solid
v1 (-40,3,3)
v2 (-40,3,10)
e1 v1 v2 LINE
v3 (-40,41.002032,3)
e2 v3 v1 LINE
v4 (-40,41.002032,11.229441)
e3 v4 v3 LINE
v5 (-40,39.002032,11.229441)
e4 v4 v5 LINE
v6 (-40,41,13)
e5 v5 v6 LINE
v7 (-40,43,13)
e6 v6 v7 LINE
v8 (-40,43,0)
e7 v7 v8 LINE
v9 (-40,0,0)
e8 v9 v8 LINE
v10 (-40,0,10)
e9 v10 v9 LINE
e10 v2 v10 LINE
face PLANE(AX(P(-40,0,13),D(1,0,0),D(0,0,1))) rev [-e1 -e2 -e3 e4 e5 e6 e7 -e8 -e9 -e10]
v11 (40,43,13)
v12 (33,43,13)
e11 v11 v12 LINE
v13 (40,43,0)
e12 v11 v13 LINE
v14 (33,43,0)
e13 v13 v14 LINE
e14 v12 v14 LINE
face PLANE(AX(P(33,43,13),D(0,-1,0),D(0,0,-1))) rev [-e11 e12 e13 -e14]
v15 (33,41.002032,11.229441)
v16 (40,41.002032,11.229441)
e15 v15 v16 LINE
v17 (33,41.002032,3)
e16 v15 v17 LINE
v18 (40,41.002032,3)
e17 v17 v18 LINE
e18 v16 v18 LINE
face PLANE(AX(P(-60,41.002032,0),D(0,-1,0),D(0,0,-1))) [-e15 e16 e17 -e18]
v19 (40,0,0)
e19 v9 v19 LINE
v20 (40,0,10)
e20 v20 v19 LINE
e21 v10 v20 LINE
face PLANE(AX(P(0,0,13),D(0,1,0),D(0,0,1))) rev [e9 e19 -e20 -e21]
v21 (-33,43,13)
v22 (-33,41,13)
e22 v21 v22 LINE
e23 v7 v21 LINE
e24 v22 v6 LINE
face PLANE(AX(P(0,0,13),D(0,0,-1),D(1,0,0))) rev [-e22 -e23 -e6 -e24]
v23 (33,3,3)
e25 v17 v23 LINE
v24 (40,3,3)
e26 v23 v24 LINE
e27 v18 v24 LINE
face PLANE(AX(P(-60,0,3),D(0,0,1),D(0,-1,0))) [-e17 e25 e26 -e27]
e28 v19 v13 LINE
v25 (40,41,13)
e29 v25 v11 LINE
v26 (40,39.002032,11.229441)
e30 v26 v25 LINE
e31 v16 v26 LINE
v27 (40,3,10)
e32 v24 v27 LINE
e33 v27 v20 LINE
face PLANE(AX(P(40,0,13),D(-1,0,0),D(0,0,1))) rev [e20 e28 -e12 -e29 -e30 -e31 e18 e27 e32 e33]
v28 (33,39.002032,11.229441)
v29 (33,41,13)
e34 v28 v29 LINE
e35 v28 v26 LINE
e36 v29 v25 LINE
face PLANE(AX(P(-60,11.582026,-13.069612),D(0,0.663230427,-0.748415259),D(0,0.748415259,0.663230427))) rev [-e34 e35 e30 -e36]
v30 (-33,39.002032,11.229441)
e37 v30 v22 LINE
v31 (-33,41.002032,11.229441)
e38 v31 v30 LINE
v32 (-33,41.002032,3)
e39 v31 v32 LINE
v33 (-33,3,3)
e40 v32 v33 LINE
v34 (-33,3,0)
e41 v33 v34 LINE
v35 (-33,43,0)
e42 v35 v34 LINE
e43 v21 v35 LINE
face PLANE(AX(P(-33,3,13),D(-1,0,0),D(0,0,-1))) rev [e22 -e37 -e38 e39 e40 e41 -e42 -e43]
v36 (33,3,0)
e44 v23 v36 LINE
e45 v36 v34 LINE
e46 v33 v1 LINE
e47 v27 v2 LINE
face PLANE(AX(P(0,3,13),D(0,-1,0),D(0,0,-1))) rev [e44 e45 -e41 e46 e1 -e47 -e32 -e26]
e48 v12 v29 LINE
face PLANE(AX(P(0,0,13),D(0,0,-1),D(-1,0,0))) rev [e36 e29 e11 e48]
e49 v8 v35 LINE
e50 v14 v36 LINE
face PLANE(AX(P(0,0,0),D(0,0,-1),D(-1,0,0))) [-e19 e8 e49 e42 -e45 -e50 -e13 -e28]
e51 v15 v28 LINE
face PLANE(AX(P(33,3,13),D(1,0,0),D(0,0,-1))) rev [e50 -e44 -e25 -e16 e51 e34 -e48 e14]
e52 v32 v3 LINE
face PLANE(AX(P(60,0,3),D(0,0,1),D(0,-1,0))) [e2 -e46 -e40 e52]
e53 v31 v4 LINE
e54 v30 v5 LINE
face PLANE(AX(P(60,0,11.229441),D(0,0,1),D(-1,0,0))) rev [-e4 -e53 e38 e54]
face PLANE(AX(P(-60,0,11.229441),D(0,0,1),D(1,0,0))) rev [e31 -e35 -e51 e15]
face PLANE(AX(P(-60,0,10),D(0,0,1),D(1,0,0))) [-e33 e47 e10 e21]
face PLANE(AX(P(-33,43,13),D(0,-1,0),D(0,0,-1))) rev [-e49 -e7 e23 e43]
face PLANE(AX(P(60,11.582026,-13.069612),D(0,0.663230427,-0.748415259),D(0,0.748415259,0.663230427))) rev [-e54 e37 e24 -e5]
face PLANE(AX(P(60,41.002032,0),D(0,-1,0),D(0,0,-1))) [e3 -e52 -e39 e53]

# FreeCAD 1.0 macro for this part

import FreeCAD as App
import Part
import Sketcher
from FreeCAD import Vector


def add_polygon(sketch, points):
    """Adds a closed chain of lines whose ends are joined by coincident constraints."""
    first, n = sketch.GeometryCount, len(points)
    for a, b in zip(points, points[1:] + points[:1]):
        sketch.addGeometry(Part.LineSegment(App.Vector(*a, 0), App.Vector(*b, 0)), False)
    for i in range(n):
        sketch.addConstraint(Sketcher.Constraint("Coincident", first + i, 2, first + (i + 1) % n, 1))

doc = App.newDocument("Part")
body = doc.addObject("PartDesign::Body", "Body")

sketch1 = body.newObject("Sketcher::SketchObject", "Sketch")
sketch1.AttachmentSupport = (doc.getObject("XY_Plane"), [""])
sketch1.MapMode = "FlatFace"
add_polygon(sketch1, [(0, 0), (40, 0), (40, 43), (33, 43), (33, 3), (0, 3)])
sketch1.addConstraint([
    Sketcher.Constraint("Horizontal", 0),
    Sketcher.Constraint("Vertical", 1),
    Sketcher.Constraint("Horizontal", 2),
    Sketcher.Constraint("Vertical", 3),
    Sketcher.Constraint("Horizontal", 4),
    Sketcher.Constraint("Vertical", 5),
    Sketcher.Constraint("Coincident", 5, 2, -1, 1),
    Sketcher.Constraint("Equal", 0, 3),
    Sketcher.Constraint("DistanceX", 0, 1, 0, 2, 40.0),
    Sketcher.Constraint("DistanceX", 2, 2, 2, 1, 7.0),
    Sketcher.Constraint("DistanceY", 1, 1, 1, 2, 43.0),
])
pad1 = body.newObject("PartDesign::Pad", "Pad")
pad1.Profile = sketch1
pad1.Length = 13

sketch2 = body.newObject("Sketcher::SketchObject", "Sketch001")
sketch2.AttachmentSupport = (doc.getObject("YZ_Plane"), [""])
sketch2.MapMode = "FlatFace"
sketch2.AttachmentOffset = App.Placement(Vector(0, 0, 40), App.Rotation())
add_polygon(sketch2, [(39.002032, 11.229441), (41, 13), (0, 13), (0, 10), (3, 10), (3, 3), (41.002032, 3), (41.002032, 11.229441)])
sketch2.addConstraint([
    Sketcher.Constraint("Horizontal", 1),
    Sketcher.Constraint("Vertical", 2),
    Sketcher.Constraint("Horizontal", 3),
    Sketcher.Constraint("Vertical", 4),
    Sketcher.Constraint("Horizontal", 5),
    Sketcher.Constraint("Vertical", 6),
    Sketcher.Constraint("Horizontal", 7),
    Sketcher.Constraint("PointOnObject", 1, 2, -2),
    Sketcher.Constraint("Equal", 3, 2),
    Sketcher.Constraint("DistanceX", 1, 2, 1, 1, 41.0),
    Sketcher.Constraint("DistanceX", 3, 1, 3, 2, 3.0),
    Sketcher.Constraint("DistanceX", 7, 2, 7, 1, 2.0),
    Sketcher.Constraint("DistanceY", 4, 2, 4, 1, 7.0),
    Sketcher.Constraint("DistanceY", -1, 1, 0, 2, 13.0),
    Sketcher.Constraint("Distance", 0, 2.669598),
    Sketcher.Constraint("DistanceY", 6, 1, 6, 2, 8.229441),
])
pocket1 = body.newObject("PartDesign::Pocket", "Pocket")
pocket1.Profile = sketch2
pocket1.Length = 100
body2 = doc.addObject("PartDesign::Body", "Body001")
doc.recompute()

body2.BaseFeature = body
doc.recompute()

mirroring = doc.addObject("Part::Mirroring", "Mirroring")
mirroring.Source = body
mirroring.Base = Vector(0, 0, 13)
mirroring.Normal = Vector(1, 0, 0)
body3 = doc.addObject("PartDesign::Body", "Body002")
body3.BaseFeature = mirroring
boolean = body2.newObject("PartDesign::Boolean", "Boolean")
boolean.Type = "Fuse"
boolean.addObjects([body3])
doc.recompute()
mirroring.Visibility = False

doc.recompute()
